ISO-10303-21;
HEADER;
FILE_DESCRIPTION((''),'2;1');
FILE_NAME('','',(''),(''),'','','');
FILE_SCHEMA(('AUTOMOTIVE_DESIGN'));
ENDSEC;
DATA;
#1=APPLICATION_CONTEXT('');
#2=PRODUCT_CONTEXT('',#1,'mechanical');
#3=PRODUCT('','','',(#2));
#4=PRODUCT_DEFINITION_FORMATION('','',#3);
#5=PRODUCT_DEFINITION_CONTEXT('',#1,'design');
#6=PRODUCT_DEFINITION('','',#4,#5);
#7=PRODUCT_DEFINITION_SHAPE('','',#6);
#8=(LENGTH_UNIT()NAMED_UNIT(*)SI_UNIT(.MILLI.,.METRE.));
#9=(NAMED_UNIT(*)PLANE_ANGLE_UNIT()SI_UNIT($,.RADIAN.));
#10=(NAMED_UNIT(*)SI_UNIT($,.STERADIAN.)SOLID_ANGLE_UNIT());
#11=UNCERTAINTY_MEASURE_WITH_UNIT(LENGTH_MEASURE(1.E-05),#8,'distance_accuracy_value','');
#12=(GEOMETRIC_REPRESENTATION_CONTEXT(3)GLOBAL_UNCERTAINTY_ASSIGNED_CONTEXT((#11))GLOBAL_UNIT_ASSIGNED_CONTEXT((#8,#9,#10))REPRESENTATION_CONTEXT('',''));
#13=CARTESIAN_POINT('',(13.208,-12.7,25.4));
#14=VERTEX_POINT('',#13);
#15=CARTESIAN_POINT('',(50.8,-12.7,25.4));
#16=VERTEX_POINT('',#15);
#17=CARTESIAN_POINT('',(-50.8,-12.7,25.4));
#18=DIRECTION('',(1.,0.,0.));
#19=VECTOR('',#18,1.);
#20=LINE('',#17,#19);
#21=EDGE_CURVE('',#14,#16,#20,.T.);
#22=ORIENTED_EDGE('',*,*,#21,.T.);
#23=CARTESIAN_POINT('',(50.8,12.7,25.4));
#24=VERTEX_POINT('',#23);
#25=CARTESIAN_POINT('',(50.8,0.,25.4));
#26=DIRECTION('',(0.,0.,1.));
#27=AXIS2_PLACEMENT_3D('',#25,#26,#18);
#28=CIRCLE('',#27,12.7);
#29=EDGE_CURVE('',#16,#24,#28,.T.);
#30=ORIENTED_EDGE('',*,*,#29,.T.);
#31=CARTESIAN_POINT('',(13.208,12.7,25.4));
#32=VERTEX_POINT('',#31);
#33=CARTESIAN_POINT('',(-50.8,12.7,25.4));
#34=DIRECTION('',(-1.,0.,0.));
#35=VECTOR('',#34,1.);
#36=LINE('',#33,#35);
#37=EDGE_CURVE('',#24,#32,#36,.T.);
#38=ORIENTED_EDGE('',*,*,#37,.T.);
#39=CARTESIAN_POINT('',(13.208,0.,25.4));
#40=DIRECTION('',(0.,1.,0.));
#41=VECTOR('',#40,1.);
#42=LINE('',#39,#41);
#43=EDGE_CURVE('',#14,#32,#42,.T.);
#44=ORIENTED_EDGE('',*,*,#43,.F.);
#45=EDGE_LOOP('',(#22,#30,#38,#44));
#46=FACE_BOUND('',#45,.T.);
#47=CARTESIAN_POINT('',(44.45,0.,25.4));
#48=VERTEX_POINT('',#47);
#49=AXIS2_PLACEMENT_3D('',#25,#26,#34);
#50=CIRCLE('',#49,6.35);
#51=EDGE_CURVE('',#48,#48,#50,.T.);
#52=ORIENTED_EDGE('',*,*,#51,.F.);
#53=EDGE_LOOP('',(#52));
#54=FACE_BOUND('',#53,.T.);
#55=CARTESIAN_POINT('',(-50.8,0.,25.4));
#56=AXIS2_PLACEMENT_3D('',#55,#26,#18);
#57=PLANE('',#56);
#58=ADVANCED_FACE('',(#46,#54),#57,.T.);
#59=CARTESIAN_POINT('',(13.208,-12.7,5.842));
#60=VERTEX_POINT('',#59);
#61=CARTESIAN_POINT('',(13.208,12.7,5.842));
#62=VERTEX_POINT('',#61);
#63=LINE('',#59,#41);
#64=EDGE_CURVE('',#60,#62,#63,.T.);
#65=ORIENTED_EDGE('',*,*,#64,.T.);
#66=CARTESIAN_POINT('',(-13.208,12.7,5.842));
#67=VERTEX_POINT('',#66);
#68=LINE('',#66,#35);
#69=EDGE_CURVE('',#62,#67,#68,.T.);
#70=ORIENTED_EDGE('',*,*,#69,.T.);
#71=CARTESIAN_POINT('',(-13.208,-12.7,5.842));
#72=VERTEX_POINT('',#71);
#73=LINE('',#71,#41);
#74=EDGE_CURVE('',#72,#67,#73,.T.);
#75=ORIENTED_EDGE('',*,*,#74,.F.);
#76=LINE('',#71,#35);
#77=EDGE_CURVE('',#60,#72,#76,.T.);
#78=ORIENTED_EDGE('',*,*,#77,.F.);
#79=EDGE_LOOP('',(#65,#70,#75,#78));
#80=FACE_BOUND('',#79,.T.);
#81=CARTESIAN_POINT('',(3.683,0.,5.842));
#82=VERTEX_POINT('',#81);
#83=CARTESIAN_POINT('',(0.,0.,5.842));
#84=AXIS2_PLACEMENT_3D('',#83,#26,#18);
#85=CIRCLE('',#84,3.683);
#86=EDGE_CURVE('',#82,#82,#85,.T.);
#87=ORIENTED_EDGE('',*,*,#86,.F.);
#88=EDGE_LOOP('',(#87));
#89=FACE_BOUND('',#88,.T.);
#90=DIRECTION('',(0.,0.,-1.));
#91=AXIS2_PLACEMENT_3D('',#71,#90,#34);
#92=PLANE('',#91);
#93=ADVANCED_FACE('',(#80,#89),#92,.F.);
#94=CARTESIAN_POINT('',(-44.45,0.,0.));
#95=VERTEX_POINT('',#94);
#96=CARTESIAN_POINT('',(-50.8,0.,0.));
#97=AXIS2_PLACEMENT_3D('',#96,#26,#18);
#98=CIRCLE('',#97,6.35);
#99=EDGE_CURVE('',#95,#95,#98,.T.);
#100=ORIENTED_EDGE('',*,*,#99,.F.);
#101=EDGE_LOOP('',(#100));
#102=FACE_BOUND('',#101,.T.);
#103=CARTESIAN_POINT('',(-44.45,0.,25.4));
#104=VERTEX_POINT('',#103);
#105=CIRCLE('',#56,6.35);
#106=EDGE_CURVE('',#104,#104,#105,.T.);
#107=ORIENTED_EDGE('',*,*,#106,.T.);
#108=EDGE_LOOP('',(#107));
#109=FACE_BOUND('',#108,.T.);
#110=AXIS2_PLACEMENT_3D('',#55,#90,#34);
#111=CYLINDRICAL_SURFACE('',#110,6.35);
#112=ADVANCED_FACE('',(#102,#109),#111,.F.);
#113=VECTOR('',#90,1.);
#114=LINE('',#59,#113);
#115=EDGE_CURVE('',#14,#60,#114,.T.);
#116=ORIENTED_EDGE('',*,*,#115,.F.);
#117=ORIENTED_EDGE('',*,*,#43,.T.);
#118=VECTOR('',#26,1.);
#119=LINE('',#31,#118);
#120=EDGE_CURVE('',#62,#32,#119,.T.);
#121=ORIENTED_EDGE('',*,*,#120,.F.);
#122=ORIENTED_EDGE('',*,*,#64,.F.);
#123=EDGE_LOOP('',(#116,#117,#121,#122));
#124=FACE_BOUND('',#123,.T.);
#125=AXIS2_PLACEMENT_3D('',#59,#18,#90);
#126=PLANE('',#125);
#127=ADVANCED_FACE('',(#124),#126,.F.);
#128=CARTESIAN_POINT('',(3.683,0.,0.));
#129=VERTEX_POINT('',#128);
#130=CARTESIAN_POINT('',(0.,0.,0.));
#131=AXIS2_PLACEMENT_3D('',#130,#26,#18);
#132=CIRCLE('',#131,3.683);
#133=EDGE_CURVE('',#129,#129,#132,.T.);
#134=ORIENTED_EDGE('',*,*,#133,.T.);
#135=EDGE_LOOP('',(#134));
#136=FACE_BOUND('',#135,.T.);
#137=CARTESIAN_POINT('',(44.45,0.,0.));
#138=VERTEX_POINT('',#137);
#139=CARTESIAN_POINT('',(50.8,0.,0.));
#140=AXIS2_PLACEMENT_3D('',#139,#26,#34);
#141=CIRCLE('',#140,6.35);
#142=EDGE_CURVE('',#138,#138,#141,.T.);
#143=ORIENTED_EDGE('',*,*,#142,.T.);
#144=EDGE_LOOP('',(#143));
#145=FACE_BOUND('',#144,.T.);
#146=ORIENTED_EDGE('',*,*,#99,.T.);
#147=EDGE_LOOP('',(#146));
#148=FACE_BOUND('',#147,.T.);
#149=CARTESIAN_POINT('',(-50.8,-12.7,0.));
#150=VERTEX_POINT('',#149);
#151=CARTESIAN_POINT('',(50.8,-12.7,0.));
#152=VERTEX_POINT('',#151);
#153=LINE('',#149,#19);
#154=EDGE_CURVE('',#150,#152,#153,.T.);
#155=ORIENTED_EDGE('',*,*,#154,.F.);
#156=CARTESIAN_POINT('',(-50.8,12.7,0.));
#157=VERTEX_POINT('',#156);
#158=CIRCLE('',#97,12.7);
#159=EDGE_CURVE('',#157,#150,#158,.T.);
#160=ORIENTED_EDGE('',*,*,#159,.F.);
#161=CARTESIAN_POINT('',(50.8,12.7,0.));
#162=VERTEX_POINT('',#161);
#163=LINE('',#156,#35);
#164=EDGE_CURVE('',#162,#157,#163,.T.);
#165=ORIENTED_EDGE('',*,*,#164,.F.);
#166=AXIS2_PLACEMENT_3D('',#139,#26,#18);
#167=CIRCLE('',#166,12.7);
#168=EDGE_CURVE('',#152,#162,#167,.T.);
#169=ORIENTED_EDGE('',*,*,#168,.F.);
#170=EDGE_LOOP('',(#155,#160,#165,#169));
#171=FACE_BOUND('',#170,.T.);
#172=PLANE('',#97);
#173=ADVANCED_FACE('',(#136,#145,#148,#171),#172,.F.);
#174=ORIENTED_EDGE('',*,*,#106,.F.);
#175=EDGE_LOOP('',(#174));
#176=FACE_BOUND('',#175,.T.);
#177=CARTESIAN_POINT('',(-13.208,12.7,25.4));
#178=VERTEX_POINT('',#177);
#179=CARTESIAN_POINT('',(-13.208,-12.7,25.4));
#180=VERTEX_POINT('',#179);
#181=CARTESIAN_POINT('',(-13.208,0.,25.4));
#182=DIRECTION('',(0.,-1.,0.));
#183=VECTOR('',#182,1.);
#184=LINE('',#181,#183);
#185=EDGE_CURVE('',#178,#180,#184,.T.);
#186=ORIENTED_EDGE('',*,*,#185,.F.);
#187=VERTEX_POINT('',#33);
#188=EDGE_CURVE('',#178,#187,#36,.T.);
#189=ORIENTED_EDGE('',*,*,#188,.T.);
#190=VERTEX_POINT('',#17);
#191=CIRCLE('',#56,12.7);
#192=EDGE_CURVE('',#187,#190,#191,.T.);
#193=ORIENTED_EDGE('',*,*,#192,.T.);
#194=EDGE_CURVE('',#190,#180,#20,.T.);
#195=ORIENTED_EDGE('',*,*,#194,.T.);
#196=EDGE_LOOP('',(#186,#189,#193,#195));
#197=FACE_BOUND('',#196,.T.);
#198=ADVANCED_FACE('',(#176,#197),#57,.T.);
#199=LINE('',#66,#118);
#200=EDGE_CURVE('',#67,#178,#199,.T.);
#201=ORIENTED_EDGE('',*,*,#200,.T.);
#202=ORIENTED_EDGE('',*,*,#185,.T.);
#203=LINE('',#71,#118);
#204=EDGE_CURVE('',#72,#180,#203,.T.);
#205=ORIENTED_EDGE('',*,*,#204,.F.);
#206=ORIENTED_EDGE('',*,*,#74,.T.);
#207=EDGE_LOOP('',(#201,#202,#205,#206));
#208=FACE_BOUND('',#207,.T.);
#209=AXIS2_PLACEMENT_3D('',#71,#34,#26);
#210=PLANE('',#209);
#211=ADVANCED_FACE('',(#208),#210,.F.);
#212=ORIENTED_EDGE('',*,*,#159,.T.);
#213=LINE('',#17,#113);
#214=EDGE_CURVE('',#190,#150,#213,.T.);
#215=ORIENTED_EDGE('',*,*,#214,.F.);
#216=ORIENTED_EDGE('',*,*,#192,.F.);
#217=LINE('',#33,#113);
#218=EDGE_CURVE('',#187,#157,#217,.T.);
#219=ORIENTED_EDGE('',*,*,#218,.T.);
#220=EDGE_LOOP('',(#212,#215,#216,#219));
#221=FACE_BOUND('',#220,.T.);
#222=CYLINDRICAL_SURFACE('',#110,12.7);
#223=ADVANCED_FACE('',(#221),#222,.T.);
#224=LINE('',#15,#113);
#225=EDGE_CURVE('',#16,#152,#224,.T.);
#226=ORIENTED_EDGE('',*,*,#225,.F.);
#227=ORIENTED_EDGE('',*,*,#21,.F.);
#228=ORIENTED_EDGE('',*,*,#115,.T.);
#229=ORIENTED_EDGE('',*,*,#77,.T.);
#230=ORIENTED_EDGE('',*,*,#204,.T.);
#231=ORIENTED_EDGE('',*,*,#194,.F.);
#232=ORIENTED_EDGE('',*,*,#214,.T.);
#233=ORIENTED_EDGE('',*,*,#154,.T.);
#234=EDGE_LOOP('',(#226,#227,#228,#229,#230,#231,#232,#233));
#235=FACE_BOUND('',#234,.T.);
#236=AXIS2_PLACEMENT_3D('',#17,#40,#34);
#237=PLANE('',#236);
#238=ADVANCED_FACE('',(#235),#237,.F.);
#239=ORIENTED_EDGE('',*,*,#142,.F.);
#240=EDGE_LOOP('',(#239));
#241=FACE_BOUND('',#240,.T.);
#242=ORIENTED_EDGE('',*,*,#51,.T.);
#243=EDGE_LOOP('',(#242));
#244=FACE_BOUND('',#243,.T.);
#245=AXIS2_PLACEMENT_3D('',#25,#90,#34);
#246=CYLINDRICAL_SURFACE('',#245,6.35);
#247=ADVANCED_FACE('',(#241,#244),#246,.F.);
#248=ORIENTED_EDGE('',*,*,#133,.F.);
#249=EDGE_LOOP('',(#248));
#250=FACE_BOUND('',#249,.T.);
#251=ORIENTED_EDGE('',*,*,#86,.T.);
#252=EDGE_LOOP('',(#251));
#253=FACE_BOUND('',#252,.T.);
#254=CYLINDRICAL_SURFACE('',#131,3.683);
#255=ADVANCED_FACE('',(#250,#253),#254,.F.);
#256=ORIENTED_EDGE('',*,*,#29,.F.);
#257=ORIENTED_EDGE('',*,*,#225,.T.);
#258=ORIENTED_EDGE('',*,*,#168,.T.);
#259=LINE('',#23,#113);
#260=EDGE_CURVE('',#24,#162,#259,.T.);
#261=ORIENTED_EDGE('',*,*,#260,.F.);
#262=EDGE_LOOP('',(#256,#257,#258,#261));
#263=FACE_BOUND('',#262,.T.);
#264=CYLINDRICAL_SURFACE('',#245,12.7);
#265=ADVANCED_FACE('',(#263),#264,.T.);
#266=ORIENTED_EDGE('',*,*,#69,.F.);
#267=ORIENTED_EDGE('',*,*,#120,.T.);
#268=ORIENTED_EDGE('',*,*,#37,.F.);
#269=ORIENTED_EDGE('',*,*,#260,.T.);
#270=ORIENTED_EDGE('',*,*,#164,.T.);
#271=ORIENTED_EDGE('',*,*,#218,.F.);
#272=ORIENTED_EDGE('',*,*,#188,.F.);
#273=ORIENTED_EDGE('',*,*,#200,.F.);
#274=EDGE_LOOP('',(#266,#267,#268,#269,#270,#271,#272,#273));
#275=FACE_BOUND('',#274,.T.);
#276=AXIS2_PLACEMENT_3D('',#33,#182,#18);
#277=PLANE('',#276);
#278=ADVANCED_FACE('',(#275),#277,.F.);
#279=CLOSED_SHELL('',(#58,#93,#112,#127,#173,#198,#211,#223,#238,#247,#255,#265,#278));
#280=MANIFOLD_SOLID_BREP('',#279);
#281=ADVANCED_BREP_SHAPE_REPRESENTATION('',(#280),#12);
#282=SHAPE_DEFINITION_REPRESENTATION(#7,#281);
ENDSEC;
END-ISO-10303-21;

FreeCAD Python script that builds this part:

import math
import FreeCAD as App
import Part
import Sketcher
from FreeCAD import Vector
Q = App.Units.Quantity

doc = App.newDocument("Part")
body = doc.addObject("PartDesign::Body", "Body")

# Sketch on XY plane
sketch1 = body.newObject("Sketcher::SketchObject", "Sketch")
sketch1.AttachmentSupport = (doc.getObject("XY_Plane"), [""])
sketch1.MapMode = "FlatFace"
sketch1.addGeometry([
    Part.LineSegment(Vector(51, 13, 0), Vector(-51, 13, 0)),  # 0
    Part.ArcOfCircle(Part.Circle(Vector(-51, 0, 0), Vector(0, 0, 1), 13), math.radians(90), math.radians(270)),  # 1
    Part.LineSegment(Vector(-51, -13, 0), Vector(51, -13, 0)),  # 2
    Part.ArcOfCircle(Part.Circle(Vector(51, 0, 0), Vector(0, 0, 1), 13), math.radians(-90), math.radians(90)),  # 3
    Part.Circle(Vector(51, 0, 0), Vector(0, 0, 1), 6),  # 4
    Part.Circle(Vector(-51, 0, 0), Vector(0, 0, 1), 6),  # 5
], False)
sketch1.addConstraint([
    Sketcher.Constraint("Tangent", 0, 2, 1, 1),
    Sketcher.Constraint("Tangent", 1, 2, 2, 1),
    Sketcher.Constraint("Tangent", 2, 2, 3, 1),
    Sketcher.Constraint("Tangent", 3, 2, 0, 1),
    Sketcher.Constraint("Horizontal", 0),
    Sketcher.Constraint("Horizontal", 2),
    Sketcher.Constraint("Coincident", 4, 3, 3, 3),
    Sketcher.Constraint("Coincident", 5, 3, 1, 3),
    Sketcher.Constraint("Equal", 4, 5),
    Sketcher.Constraint("Symmetric", 1, 3, 3, 3, -1, 1),
    Sketcher.Constraint("Diameter", 4, Q("0.5 in")),
    Sketcher.Constraint("Radius", 1, Q("0.5 in")),
    Sketcher.Constraint("DistanceX", 0, 2, 0, 1, Q("4 in")),
])
pad1 = body.newObject("PartDesign::Pad", "Pad")
pad1.Profile = sketch1
pad1.Length = Q("1 in")

# Sketch on XZ plane
sketch2 = body.newObject("Sketcher::SketchObject", "Sketch001")
sketch2.AttachmentSupport = (doc.getObject("XZ_Plane"), [""])
sketch2.MapMode = "FlatFace"
sketch2.AttachmentOffset = App.Placement(Vector(0, 0, -0.5 * 25.4), App.Rotation())
sketch2.addGeometry([
    Part.LineSegment(Vector(-13, 6, 0), Vector(-13, 45, 0)),
    Part.LineSegment(Vector(-13, 45, 0), Vector(13, 45, 0)),
    Part.LineSegment(Vector(13, 45, 0), Vector(13, 6, 0)),
    Part.LineSegment(Vector(13, 6, 0), Vector(-13, 6, 0)),
], False)
sketch2.addConstraint([
    Sketcher.Constraint("Coincident", 0, 2, 1, 1),
    Sketcher.Constraint("Coincident", 1, 2, 2, 1),
    Sketcher.Constraint("Coincident", 2, 2, 3, 1),
    Sketcher.Constraint("Coincident", 3, 2, 0, 1),
    Sketcher.Constraint("Vertical", 0),
    Sketcher.Constraint("Horizontal", 1),
    Sketcher.Constraint("Vertical", 2),
    Sketcher.Constraint("Horizontal", 3),
    Sketcher.Constraint("DistanceX", 1, 1, 1, 2, Q("1.04 in")),
    Sketcher.Constraint("DistanceY", 0, 1, 0, 2, Q("1.54 in")),
    Sketcher.Constraint("DistanceX", 0, 2, -1, 1, Q("0.52 in")),
    Sketcher.Constraint("DistanceY", -1, 1, 0, 2, Q("1.77 in")),
])
pocket1 = body.newObject("PartDesign::Pocket", "Pocket")
pocket1.Profile = sketch2
pocket1.Type = "ThroughAll"
pocket1.Reversed = True

# Sketch on XY plane
sketch3 = body.newObject("Sketcher::SketchObject", "Sketch002")
sketch3.AttachmentSupport = (doc.getObject("XY_Plane"), [""])
sketch3.MapMode = "FlatFace"
sketch3.AttachmentOffset = App.Placement(Vector(0, 0, 0.23 * 25.4), App.Rotation())
sketch3.addGeometry(Part.Circle(Vector(0, 0, 0), Vector(0, 0, 1), 3.7), False)
sketch3.addConstraint([
    Sketcher.Constraint("Coincident", 0, 3, -1, 1),
    Sketcher.Constraint("Diameter", 0, Q("0.29 in")),
])
pocket2 = body.newObject("PartDesign::Pocket", "Pocket001")
pocket2.Profile = sketch3
pocket2.Type = "ThroughAll"

doc.recompute()
